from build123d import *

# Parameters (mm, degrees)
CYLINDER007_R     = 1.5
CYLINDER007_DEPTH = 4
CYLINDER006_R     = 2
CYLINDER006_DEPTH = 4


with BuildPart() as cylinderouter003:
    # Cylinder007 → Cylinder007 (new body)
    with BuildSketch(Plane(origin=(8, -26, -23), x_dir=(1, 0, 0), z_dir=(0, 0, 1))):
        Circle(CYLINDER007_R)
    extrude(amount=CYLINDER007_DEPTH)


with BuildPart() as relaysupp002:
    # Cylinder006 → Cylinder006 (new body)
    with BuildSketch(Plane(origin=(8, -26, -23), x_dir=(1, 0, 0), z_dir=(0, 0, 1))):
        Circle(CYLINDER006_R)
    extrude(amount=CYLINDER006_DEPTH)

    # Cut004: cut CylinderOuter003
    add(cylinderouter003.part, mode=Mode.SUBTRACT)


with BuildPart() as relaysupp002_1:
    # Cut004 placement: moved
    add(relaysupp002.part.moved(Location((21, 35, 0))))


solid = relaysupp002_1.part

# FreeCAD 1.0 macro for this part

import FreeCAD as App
import Part
import Sketcher

V = App.Vector
Q = App.Units.Quantity

doc = App.newDocument("Part")
body = doc.addObject("PartDesign::Body", "Body")

sketch1 = body.newObject("Sketcher::SketchObject", "Sketch")
sketch1.AttachmentSupport = (doc.getObject("XY_Plane"), [""])
sketch1.MapMode = "FlatFace"
sketch1.AttachmentOffset = App.Placement(V(0, 0, -23), App.Rotation())
sketch1.addGeometry(Part.Circle(V(8, -26, 0), V(0, 0, 1), 1.5), False)
sketch1.addConstraint([
    Sketcher.Constraint("Diameter", 0, Q("3 mm")),
    Sketcher.Constraint("DistanceX", -1, 1, 0, 3, Q("8 mm")),
    Sketcher.Constraint("DistanceY", 0, 3, -1, 1, Q("26 mm")),
])
pad1 = body.newObject("PartDesign::Pad", "Pad")
pad1.Profile = sketch1
pad1.Length = 4
body2 = doc.addObject("PartDesign::Body", "Body001")

sketch2 = body2.newObject("Sketcher::SketchObject", "Sketch001")
sketch2.AttachmentSupport = (doc.getObject("XY_Plane001"), [""])
sketch2.MapMode = "FlatFace"
sketch2.AttachmentOffset = App.Placement(V(0, 0, -23), App.Rotation())
sketch2.addGeometry(Part.Circle(V(8, -26, 0), V(0, 0, 1), 2), False)
sketch2.addConstraint([
    Sketcher.Constraint("Diameter", 0, Q("4 mm")),
    Sketcher.Constraint("DistanceX", -1, 1, 0, 3, Q("8 mm")),
    Sketcher.Constraint("DistanceY", 0, 3, -1, 1, Q("26 mm")),
])
pad2 = body2.newObject("PartDesign::Pad", "Pad001")
pad2.Profile = sketch2
pad2.Length = 4
doc.recompute()

boolean = body2.newObject("PartDesign::Boolean", "Boolean")
boolean.Type = "Cut"
boolean.addObjects([body])
body3 = doc.addObject("PartDesign::Body", "Body002")
doc.recompute()

body2.Placement = App.Placement(V(21, 35, 0), App.Rotation(V(0, 0, 1), 0))
boolean2 = body3.newObject("PartDesign::Boolean", "Boolean001")
boolean2.Type = "Fuse"
boolean2.addObjects([body2])

doc.recompute()
